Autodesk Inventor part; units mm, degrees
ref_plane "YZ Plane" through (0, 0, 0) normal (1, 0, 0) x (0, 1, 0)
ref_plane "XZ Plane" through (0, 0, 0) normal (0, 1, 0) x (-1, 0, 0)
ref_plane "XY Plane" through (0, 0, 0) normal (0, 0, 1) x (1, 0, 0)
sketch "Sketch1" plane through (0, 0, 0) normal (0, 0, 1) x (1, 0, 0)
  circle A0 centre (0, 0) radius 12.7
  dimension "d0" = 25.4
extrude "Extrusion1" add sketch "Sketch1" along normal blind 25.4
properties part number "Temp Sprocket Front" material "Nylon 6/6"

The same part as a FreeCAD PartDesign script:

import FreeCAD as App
import Part
import Sketcher
from FreeCAD import Vector
Q = App.Units.Quantity

doc = App.newDocument("Part")
body = doc.addObject("PartDesign::Body", "Body")

# Sketch on XY plane
sketch1 = body.newObject("Sketcher::SketchObject", "Sketch")
sketch1.AttachmentSupport = (doc.getObject("XY_Plane"), [""])
sketch1.MapMode = "FlatFace"
sketch1.addGeometry(Part.Circle(Vector(0, 0, 0), Vector(0, 0, 1), 13), False)
sketch1.addConstraint([
    Sketcher.Constraint("Coincident", 0, 3, -1, 1),
    Sketcher.Constraint("Diameter", 0, Q("1 in")),
])
pad1 = body.newObject("PartDesign::Pad", "Pad")
pad1.Profile = sketch1
pad1.Length = Q("1 in")

doc.recompute()
